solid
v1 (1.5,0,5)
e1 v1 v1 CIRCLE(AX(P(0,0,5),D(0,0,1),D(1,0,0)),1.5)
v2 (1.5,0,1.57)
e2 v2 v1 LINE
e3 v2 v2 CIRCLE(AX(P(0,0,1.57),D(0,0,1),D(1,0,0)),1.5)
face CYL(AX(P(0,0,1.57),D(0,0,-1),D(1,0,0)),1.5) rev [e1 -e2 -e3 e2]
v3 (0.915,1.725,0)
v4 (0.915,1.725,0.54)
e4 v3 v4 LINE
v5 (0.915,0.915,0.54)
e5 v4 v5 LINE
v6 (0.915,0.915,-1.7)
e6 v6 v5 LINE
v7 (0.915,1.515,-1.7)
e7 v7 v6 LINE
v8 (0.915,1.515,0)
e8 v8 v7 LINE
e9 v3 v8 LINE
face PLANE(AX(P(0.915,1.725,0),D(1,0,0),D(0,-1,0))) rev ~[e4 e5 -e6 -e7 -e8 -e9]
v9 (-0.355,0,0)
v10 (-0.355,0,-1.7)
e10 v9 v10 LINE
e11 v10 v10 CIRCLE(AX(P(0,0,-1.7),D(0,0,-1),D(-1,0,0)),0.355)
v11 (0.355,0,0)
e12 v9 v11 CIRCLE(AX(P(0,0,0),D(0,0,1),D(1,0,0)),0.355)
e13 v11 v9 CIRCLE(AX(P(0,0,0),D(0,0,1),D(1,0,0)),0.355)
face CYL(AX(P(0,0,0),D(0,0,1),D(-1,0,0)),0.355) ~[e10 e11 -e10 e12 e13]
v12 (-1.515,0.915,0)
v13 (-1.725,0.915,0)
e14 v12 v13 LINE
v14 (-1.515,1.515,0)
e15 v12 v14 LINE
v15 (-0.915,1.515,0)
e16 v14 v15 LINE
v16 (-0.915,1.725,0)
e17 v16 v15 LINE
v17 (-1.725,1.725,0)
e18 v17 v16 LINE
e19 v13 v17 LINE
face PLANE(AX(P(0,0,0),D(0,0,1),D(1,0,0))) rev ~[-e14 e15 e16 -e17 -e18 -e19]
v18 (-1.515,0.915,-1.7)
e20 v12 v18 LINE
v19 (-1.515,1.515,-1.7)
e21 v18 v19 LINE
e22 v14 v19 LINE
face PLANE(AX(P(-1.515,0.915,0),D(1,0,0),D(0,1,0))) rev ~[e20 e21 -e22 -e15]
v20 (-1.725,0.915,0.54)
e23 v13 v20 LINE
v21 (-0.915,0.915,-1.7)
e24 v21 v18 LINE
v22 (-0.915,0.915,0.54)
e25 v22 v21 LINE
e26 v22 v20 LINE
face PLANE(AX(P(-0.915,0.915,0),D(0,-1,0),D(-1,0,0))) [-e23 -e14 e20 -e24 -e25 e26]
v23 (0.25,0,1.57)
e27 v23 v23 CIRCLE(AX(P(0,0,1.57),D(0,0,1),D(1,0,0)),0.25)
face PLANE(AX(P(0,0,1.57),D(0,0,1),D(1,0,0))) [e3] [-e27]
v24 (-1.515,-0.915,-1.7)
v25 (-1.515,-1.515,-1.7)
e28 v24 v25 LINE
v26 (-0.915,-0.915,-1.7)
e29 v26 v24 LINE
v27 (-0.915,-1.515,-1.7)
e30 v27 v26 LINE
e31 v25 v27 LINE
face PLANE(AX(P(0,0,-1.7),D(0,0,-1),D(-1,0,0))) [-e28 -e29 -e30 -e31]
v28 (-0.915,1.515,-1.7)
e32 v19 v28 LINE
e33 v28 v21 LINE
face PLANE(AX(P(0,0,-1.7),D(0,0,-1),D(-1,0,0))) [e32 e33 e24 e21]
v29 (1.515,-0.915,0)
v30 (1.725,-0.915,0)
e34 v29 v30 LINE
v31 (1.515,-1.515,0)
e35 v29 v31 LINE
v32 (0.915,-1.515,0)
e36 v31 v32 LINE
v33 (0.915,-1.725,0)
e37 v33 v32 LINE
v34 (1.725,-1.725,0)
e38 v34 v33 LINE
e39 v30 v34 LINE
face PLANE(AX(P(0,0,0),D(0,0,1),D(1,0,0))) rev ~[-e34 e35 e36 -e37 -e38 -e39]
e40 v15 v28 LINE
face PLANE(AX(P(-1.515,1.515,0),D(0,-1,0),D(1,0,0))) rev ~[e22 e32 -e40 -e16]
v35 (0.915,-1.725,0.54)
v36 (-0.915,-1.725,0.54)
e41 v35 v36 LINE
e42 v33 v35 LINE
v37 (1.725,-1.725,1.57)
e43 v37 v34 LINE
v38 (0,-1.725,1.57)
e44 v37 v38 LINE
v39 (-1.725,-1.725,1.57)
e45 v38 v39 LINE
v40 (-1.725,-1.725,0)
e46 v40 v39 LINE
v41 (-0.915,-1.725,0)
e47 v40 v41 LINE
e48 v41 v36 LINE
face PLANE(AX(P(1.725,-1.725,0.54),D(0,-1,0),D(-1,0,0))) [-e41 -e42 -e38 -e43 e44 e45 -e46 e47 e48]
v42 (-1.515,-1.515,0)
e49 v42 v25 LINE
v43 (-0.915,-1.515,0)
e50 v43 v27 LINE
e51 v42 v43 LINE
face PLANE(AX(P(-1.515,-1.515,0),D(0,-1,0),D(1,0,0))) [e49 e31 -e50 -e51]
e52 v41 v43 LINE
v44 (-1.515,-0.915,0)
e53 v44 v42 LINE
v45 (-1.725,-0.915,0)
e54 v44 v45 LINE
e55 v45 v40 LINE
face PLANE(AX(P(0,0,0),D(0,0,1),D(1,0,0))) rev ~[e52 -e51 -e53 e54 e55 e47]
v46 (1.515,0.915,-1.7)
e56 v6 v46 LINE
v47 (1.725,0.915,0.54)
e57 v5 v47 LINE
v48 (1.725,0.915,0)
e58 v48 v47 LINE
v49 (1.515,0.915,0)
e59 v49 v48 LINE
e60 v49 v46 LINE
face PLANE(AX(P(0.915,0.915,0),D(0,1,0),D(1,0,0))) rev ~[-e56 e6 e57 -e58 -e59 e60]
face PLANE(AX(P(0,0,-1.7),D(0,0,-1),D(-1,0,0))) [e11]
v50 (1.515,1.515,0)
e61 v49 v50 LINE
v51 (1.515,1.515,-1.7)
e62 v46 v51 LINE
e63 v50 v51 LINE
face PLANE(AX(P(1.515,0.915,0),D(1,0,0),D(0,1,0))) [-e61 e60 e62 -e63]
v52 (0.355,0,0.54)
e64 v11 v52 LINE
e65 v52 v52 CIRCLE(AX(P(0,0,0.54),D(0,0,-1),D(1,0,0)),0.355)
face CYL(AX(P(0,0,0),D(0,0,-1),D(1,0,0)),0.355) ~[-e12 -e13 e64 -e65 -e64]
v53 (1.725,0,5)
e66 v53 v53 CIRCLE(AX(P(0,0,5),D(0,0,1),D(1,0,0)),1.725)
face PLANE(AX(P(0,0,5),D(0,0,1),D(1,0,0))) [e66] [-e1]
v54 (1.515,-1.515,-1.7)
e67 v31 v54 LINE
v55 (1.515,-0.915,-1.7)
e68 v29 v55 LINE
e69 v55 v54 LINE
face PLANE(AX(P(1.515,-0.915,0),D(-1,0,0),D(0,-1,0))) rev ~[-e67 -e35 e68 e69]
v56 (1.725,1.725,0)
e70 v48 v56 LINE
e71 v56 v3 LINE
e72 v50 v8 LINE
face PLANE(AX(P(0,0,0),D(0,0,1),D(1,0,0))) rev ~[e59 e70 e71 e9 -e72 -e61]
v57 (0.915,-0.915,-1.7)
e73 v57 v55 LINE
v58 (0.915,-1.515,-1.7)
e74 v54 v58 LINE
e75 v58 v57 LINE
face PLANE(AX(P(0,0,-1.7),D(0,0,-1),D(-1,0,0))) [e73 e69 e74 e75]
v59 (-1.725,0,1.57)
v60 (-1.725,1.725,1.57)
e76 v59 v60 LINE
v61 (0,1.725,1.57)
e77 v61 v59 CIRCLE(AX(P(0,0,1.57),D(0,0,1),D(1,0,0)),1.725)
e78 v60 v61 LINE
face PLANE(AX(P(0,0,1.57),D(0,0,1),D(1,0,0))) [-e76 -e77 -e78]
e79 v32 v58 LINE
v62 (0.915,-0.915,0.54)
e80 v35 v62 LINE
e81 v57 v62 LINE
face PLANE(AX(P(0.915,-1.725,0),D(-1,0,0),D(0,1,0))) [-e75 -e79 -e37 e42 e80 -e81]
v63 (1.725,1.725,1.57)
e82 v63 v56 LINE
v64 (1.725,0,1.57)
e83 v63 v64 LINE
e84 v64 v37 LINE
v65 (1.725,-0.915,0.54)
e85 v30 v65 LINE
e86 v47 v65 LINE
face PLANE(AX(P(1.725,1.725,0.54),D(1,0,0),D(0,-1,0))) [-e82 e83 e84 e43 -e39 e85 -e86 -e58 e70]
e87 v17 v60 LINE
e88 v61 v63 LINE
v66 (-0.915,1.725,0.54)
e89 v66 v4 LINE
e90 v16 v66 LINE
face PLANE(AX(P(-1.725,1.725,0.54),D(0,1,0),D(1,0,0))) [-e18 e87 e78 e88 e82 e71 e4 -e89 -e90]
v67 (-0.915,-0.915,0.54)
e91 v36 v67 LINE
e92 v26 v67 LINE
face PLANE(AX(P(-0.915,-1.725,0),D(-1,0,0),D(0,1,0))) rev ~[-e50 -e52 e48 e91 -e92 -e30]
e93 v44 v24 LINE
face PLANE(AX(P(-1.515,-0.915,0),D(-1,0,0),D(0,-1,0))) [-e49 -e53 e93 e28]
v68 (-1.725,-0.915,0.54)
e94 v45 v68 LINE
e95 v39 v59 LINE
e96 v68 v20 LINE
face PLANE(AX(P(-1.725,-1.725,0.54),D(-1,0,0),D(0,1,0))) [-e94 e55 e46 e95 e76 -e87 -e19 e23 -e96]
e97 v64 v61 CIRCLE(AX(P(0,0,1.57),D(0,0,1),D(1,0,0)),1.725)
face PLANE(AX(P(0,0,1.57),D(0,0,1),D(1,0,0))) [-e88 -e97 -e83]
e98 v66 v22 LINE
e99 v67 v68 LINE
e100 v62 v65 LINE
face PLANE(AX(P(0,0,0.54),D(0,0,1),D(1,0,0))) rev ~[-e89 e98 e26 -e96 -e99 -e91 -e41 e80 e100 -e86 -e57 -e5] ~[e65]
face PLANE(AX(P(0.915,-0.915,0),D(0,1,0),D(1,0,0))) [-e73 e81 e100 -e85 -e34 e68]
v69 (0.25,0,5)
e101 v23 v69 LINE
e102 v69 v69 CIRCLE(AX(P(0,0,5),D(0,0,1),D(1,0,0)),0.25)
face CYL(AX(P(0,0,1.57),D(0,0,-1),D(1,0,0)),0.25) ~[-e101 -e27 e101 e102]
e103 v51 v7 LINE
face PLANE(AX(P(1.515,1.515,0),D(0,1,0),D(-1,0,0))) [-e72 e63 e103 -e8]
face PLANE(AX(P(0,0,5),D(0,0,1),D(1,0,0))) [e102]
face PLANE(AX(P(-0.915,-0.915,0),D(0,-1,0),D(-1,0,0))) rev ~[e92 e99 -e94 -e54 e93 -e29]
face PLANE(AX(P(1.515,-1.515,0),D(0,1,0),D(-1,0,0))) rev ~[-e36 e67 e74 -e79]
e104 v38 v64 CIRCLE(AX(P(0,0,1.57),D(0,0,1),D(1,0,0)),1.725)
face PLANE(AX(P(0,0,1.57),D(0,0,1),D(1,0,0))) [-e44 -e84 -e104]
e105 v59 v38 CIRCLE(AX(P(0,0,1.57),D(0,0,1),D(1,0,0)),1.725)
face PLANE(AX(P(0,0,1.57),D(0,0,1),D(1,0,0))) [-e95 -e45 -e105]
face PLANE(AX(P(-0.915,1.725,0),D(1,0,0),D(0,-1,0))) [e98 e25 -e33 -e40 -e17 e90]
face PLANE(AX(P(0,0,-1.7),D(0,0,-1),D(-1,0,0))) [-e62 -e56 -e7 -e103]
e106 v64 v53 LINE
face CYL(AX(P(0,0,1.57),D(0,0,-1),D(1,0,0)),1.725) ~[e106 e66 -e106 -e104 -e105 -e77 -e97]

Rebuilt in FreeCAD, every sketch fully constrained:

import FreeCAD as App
import Part
import Sketcher
from FreeCAD import Vector


def add_polygon(sketch, points):
    """Adds a closed chain of lines whose ends are joined by coincident constraints."""
    first, n = sketch.GeometryCount, len(points)
    for a, b in zip(points, points[1:] + points[:1]):
        sketch.addGeometry(Part.LineSegment(App.Vector(*a, 0), App.Vector(*b, 0)), False)
    for i in range(n):
        sketch.addConstraint(Sketcher.Constraint("Coincident", first + i, 2, first + (i + 1) % n, 1))

doc = App.newDocument("Part")
body = doc.addObject("PartDesign::Body", "Body")
body.AllowCompound = True

sketch1 = doc.addObject("Sketcher::SketchObject", "Sketch")
body.addObject(sketch1)
sketch1.AttachmentSupport = (doc.XY_Plane, [""])
sketch1.MapMode = "FlatFace"
sketch1.addGeometry(Part.Circle(Vector(0, 0, 0), Vector(0, 0, 1), 0.355), False)
add_polygon(sketch1, [(-0.915, 1.725), (-1.725, 1.725), (-1.725, 0.915), (-0.915, 0.915)])
add_polygon(sketch1, [(-1.725, -0.915), (-1.725, -1.725), (-0.915, -1.725), (-0.915, -0.915)])
add_polygon(sketch1, [(0.915, -1.725), (1.725, -1.725), (1.725, -0.915), (0.915, -0.915)])
add_polygon(sketch1, [(1.725, 0.915), (1.725, 1.725), (0.915, 1.725), (0.915, 0.915)])
sketch1.addConstraint([
    Sketcher.Constraint("Horizontal", 1),
    Sketcher.Constraint("Vertical", 2),
    Sketcher.Constraint("Horizontal", 3),
    Sketcher.Constraint("Vertical", 4),
    Sketcher.Constraint("Vertical", 5),
    Sketcher.Constraint("Horizontal", 6),
    Sketcher.Constraint("Vertical", 7),
    Sketcher.Constraint("Horizontal", 8),
    Sketcher.Constraint("Horizontal", 9),
    Sketcher.Constraint("Vertical", 10),
    Sketcher.Constraint("Horizontal", 11),
    Sketcher.Constraint("Vertical", 12),
    Sketcher.Constraint("Vertical", 13),
    Sketcher.Constraint("Horizontal", 14),
    Sketcher.Constraint("Vertical", 15),
    Sketcher.Constraint("Horizontal", 16),
    Sketcher.Constraint("Coincident", 0, 3, -1, 1),
    Sketcher.Constraint("Symmetric", 1, 2, 9, 2, -1, 1),
    Sketcher.Constraint("Symmetric", 3, 2, 11, 2, -1, 1),
    Sketcher.Constraint("Symmetric", 5, 2, 13, 2, -1, 1),
    Sketcher.Constraint("Symmetric", 7, 2, 15, 2, -1, 1),
    Sketcher.Constraint("Symmetric", 5, 2, 9, 2, -2),
    Sketcher.Constraint("Symmetric", 7, 2, 11, 2, -2),
    Sketcher.Constraint("Equal", 16, 2),
    Sketcher.Constraint("Diameter", 0, 0.71),
    Sketcher.Constraint("DistanceX", 1, 2, 1, 1, 0.81),
    Sketcher.Constraint("DistanceY", 5, 2, 1, 2, 3.45),
    Sketcher.Constraint("DistanceX", 5, 2, 9, 2, 3.45),
])
pad1 = doc.addObject("PartDesign::Pad", "Pad")
body.addObject(pad1)
pad1.Profile = sketch1
pad1.Length = 0.54

sketch2 = doc.addObject("Sketcher::SketchObject", "Sketch001")
body.addObject(sketch2)
sketch2.AttachmentSupport = (doc.XY_Plane, [""])
sketch2.MapMode = "FlatFace"
sketch2.AttachmentOffset = App.Placement(Vector(0, 0, 0.54), App.Rotation())
add_polygon(sketch2, [(1.725, 1.725), (-1.725, 1.725), (-1.725, -1.725), (1.725, -1.725)])
sketch2.addConstraint([
    Sketcher.Constraint("Horizontal", 0),
    Sketcher.Constraint("Vertical", 1),
    Sketcher.Constraint("Horizontal", 2),
    Sketcher.Constraint("Vertical", 3),
    Sketcher.Constraint("Symmetric", 0, 2, 2, 2, -1, 1),
    Sketcher.Constraint("Equal", 2, 1),
    Sketcher.Constraint("DistanceX", 0, 2, 0, 1, 3.45),
])
pad2 = doc.addObject("PartDesign::Pad", "Pad001")
body.addObject(pad2)
pad2.Profile = sketch2
pad2.Length = 1.03

sketch3 = doc.addObject("Sketcher::SketchObject", "Sketch002")
body.addObject(sketch3)
sketch3.AttachmentSupport = (doc.XY_Plane, [""])
sketch3.MapMode = "FlatFace"
sketch3.AttachmentOffset = App.Placement(Vector(0, 0, 1.57), App.Rotation())
sketch3.addGeometry([
    Part.Circle(Vector(0, 0, 0), Vector(0, 0, 1), 1.725),
    Part.Circle(Vector(0, 0, 0), Vector(0, 0, 1), 1.5),
    Part.Circle(Vector(0, 0, 0), Vector(0, 0, 1), 0.25),
], False)
sketch3.addConstraint([
    Sketcher.Constraint("Coincident", 0, 3, -1, 1),
    Sketcher.Constraint("Coincident", 1, 3, -1, 1),
    Sketcher.Constraint("Coincident", 2, 3, -1, 1),
    Sketcher.Constraint("Diameter", 1, 3.0),
    Sketcher.Constraint("Diameter", 2, 0.5),
    Sketcher.Constraint("Diameter", 0, 3.45),
])
pad3 = doc.addObject("PartDesign::Pad", "Pad002")
body.addObject(pad3)
pad3.Profile = sketch3
pad3.Length = 3.43

sketch4 = doc.addObject("Sketcher::SketchObject", "Sketch003")
body.addObject(sketch4)
sketch4.AttachmentSupport = (doc.XY_Plane, [""])
sketch4.MapMode = "FlatFace"
sketch4.addGeometry(Part.Circle(Vector(0, 0, 0), Vector(0, 0, 1), 0.355), False)
add_polygon(sketch4, [(1.515, 0.915), (0.915, 0.915), (0.915, 1.515), (1.515, 1.515)])
add_polygon(sketch4, [(-0.915, 1.515), (-0.915, 0.915), (-1.515, 0.915), (-1.515, 1.515)])
add_polygon(sketch4, [(-1.515, -0.915), (-0.915, -0.915), (-0.915, -1.515), (-1.515, -1.515)])
add_polygon(sketch4, [(0.915, -1.515), (0.915, -0.915), (1.515, -0.915), (1.515, -1.515)])
sketch4.addConstraint([
    Sketcher.Constraint("Horizontal", 1),
    Sketcher.Constraint("Vertical", 2),
    Sketcher.Constraint("Horizontal", 3),
    Sketcher.Constraint("Vertical", 4),
    Sketcher.Constraint("Vertical", 5),
    Sketcher.Constraint("Horizontal", 6),
    Sketcher.Constraint("Vertical", 7),
    Sketcher.Constraint("Horizontal", 8),
    Sketcher.Constraint("Horizontal", 9),
    Sketcher.Constraint("Vertical", 10),
    Sketcher.Constraint("Horizontal", 11),
    Sketcher.Constraint("Vertical", 12),
    Sketcher.Constraint("Vertical", 13),
    Sketcher.Constraint("Horizontal", 14),
    Sketcher.Constraint("Vertical", 15),
    Sketcher.Constraint("Horizontal", 16),
    Sketcher.Constraint("Coincident", 0, 3, -1, 1),
    Sketcher.Constraint("Symmetric", 1, 2, 9, 2, -1, 1),
    Sketcher.Constraint("Symmetric", 3, 2, 11, 2, -1, 1),
    Sketcher.Constraint("Symmetric", 5, 2, 13, 2, -1, 1),
    Sketcher.Constraint("Symmetric", 7, 2, 15, 2, -1, 1),
    Sketcher.Constraint("Symmetric", 1, 2, 5, 2, -2),
    Sketcher.Constraint("Symmetric", 3, 2, 7, 2, -2),
    Sketcher.Constraint("Equal", 16, 2),
    Sketcher.Constraint("DistanceX", 1, 2, 1, 1, 0.6),
    Sketcher.Constraint("Diameter", 0, 0.71),
    Sketcher.Constraint("DistanceX", 5, 2, 1, 2, 1.83),
    Sketcher.Constraint("DistanceY", 9, 2, 5, 2, 1.83),
])
pad4 = doc.addObject("PartDesign::Pad", "Pad003")
body.addObject(pad4)
pad4.Profile = sketch4
pad4.Length = 1.7
pad4.Reversed = True

doc.recompute()
